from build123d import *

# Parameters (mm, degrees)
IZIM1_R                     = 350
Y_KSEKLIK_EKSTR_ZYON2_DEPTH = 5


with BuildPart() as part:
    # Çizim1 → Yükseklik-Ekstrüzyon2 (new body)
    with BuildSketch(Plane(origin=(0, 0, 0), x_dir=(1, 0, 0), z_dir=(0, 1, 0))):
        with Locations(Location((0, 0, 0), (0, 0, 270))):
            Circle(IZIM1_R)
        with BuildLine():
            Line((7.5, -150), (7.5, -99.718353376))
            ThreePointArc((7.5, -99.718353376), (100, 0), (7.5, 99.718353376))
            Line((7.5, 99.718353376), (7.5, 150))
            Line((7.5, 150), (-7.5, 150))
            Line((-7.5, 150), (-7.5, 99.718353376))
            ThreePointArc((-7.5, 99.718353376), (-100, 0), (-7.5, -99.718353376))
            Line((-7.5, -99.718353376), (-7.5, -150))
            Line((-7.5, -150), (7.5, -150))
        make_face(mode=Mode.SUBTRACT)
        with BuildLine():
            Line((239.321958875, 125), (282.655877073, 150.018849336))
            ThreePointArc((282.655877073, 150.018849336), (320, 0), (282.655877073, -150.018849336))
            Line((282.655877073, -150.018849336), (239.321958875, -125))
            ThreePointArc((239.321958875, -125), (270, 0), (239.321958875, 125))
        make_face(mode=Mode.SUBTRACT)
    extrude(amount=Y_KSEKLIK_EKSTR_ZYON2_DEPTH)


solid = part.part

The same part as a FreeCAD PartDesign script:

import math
import FreeCAD as App
import Part
import Sketcher

V = App.Vector
Q = App.Units.Quantity

doc = App.newDocument("Part")
params = doc.addObject("Spreadsheet::Sheet", "Params")
for row, (alias, value) in enumerate([
    ("sketch1_diameter", "700 mm"),
    ("sketch1_radius", "100 mm"),
    ("sketch1_radius2", "270 mm"),
    ("sketch1_radius3", "320 mm"),
    ("sketch1_width", "15 mm"),
    ("pad1_length", "5 mm"),
], start=1):
    params.set(f"A{row}", alias)
    params.set(f"B{row}", "=" + value)
    params.setAlias(f"B{row}", alias)

body = doc.addObject("PartDesign::Body", "Body")

# Sketch on XZ plane
sketch1 = doc.addObject("Sketcher::SketchObject", "Sketch")
body.addObject(sketch1)
sketch1.AttachmentSupport = (doc.XZ_Plane, [""])
sketch1.MapMode = "FlatFace"
sketch1.addGeometry(Part.Circle(V(0, 0, 0), V(0, 0, 1), 350), False)
sketch1.addGeometry(Part.LineSegment(V(7.5, 99.718353, 0), V(7.5, 150, 0)), False)
sketch1.addGeometry(Part.LineSegment(V(7.5, 150, 0), V(-7.5, 150, 0)), False)
sketch1.addGeometry(Part.LineSegment(V(-7.5, 150, 0), V(-7.5, 99.718353, 0)), False)
sketch1.addGeometry(Part.ArcOfCircle(Part.Circle(V(0, 0, 0), V(0, 0, 1), 100), math.radians(94.301222), math.radians(265.698778)), False)
sketch1.addGeometry(Part.LineSegment(V(-7.5, -99.718353, 0), V(-7.5, -150, 0)), False)
sketch1.addGeometry(Part.LineSegment(V(-7.5, -150, 0), V(7.5, -150, 0)), False)
sketch1.addGeometry(Part.LineSegment(V(7.5, -150, 0), V(7.5, -99.718353, 0)), False)
sketch1.addGeometry(Part.ArcOfCircle(Part.Circle(V(0, 0, 0), V(0, 0, 1), 100), math.radians(-85.698778), math.radians(85.698778)), False)
sketch1.addGeometry(Part.ArcOfCircle(Part.Circle(V(0, 0, 0), V(0, 0, 1), 270), math.radians(-27.578468), math.radians(27.578468)), False)
sketch1.addGeometry(Part.LineSegment(V(239.321959, -125, 0), V(282.655877, -150.018849, 0)), False)
sketch1.addGeometry(Part.ArcOfCircle(Part.Circle(V(0, 0, 0), V(0, 0, 1), 320), math.radians(-27.957008), math.radians(27.957008)), False)
sketch1.addGeometry(Part.LineSegment(V(282.655877, 150.018849, 0), V(239.321959, 125, 0)), False)
sketch1.addConstraint(Sketcher.Constraint("Coincident", 1, 2, 2, 1))
sketch1.addConstraint(Sketcher.Constraint("Coincident", 2, 2, 3, 1))
sketch1.addConstraint(Sketcher.Constraint("Coincident", 3, 2, 4, 1))
sketch1.addConstraint(Sketcher.Constraint("Coincident", 4, 2, 5, 1))
sketch1.addConstraint(Sketcher.Constraint("Coincident", 5, 2, 6, 1))
sketch1.addConstraint(Sketcher.Constraint("Coincident", 6, 2, 7, 1))
sketch1.addConstraint(Sketcher.Constraint("Coincident", 7, 2, 8, 1))
sketch1.addConstraint(Sketcher.Constraint("Coincident", 8, 2, 1, 1))
sketch1.addConstraint(Sketcher.Constraint("Coincident", 9, 1, 10, 1))
sketch1.addConstraint(Sketcher.Constraint("Coincident", 10, 2, 11, 1))
sketch1.addConstraint(Sketcher.Constraint("Coincident", 11, 2, 12, 1))
sketch1.addConstraint(Sketcher.Constraint("Coincident", 12, 2, 9, 2))
sketch1.addConstraint(Sketcher.Constraint("Vertical", 1))
sketch1.addConstraint(Sketcher.Constraint("Horizontal", 2))
sketch1.addConstraint(Sketcher.Constraint("Vertical", 3))
sketch1.addConstraint(Sketcher.Constraint("Vertical", 5))
sketch1.addConstraint(Sketcher.Constraint("Horizontal", 6))
sketch1.addConstraint(Sketcher.Constraint("Vertical", 7))
sketch1.addConstraint(Sketcher.Constraint("Coincident", 0, 3, -1, 1))
sketch1.addConstraint(Sketcher.Constraint("Coincident", 4, 3, -1, 1))
sketch1.addConstraint(Sketcher.Constraint("Coincident", 8, 3, -1, 1))
sketch1.addConstraint(Sketcher.Constraint("Coincident", 9, 3, -1, 1))
sketch1.addConstraint(Sketcher.Constraint("Coincident", 11, 3, -1, 1))
sketch1.addConstraint(Sketcher.Constraint("Equal", 4, 8))
sketch1.addConstraint(Sketcher.Constraint("Symmetric", 1, 2, 5, 2, -1, 1))
sketch1.addConstraint(Sketcher.Constraint("Horizontal", 4, 2, 7, 2))
sketch1.addConstraint(Sketcher.Constraint("Horizontal", 3, 2, 8, 2))
sketch1.addConstraint(Sketcher.Constraint("Vertical", 10, 2, 11, 2))
sketch1.addConstraint(Sketcher.Constraint("Vertical", 9, 1, 12, 2))
sketch1.addConstraint(Sketcher.Constraint("Diameter", 0, Q("700 mm")))
sketch1.addConstraint(Sketcher.Constraint("Radius", 4, Q("100 mm")))
sketch1.addConstraint(Sketcher.Constraint("Radius", 9, Q("270 mm")))
sketch1.addConstraint(Sketcher.Constraint("Radius", 11, Q("320 mm")))
sketch1.addConstraint(Sketcher.Constraint("DistanceX", 2, 2, 2, 1, Q("15 mm")))
sketch1.addConstraint(Sketcher.Constraint("Angle", 10, Q("-30 deg")))
sketch1.addConstraint(Sketcher.Constraint("DistanceY", -1, 1, 1, 2, Q("150 mm")))
sketch1.addConstraint(Sketcher.Constraint("DistanceY", -1, 1, 12, 2, Q("125 mm")))
sketch1.setExpression("Constraints[29]", "Params.sketch1_diameter")
sketch1.setExpression("Constraints[30]", "Params.sketch1_radius")
sketch1.setExpression("Constraints[31]", "Params.sketch1_radius2")
sketch1.setExpression("Constraints[32]", "Params.sketch1_radius3")
sketch1.setExpression("Constraints[33]", "Params.sketch1_width")
pad1 = doc.addObject("PartDesign::Pad", "Pad")
body.addObject(pad1)
pad1.Profile = sketch1
pad1.setExpression("Length", "Params.pad1_length")
pad1.Reversed = True

doc.recompute()
